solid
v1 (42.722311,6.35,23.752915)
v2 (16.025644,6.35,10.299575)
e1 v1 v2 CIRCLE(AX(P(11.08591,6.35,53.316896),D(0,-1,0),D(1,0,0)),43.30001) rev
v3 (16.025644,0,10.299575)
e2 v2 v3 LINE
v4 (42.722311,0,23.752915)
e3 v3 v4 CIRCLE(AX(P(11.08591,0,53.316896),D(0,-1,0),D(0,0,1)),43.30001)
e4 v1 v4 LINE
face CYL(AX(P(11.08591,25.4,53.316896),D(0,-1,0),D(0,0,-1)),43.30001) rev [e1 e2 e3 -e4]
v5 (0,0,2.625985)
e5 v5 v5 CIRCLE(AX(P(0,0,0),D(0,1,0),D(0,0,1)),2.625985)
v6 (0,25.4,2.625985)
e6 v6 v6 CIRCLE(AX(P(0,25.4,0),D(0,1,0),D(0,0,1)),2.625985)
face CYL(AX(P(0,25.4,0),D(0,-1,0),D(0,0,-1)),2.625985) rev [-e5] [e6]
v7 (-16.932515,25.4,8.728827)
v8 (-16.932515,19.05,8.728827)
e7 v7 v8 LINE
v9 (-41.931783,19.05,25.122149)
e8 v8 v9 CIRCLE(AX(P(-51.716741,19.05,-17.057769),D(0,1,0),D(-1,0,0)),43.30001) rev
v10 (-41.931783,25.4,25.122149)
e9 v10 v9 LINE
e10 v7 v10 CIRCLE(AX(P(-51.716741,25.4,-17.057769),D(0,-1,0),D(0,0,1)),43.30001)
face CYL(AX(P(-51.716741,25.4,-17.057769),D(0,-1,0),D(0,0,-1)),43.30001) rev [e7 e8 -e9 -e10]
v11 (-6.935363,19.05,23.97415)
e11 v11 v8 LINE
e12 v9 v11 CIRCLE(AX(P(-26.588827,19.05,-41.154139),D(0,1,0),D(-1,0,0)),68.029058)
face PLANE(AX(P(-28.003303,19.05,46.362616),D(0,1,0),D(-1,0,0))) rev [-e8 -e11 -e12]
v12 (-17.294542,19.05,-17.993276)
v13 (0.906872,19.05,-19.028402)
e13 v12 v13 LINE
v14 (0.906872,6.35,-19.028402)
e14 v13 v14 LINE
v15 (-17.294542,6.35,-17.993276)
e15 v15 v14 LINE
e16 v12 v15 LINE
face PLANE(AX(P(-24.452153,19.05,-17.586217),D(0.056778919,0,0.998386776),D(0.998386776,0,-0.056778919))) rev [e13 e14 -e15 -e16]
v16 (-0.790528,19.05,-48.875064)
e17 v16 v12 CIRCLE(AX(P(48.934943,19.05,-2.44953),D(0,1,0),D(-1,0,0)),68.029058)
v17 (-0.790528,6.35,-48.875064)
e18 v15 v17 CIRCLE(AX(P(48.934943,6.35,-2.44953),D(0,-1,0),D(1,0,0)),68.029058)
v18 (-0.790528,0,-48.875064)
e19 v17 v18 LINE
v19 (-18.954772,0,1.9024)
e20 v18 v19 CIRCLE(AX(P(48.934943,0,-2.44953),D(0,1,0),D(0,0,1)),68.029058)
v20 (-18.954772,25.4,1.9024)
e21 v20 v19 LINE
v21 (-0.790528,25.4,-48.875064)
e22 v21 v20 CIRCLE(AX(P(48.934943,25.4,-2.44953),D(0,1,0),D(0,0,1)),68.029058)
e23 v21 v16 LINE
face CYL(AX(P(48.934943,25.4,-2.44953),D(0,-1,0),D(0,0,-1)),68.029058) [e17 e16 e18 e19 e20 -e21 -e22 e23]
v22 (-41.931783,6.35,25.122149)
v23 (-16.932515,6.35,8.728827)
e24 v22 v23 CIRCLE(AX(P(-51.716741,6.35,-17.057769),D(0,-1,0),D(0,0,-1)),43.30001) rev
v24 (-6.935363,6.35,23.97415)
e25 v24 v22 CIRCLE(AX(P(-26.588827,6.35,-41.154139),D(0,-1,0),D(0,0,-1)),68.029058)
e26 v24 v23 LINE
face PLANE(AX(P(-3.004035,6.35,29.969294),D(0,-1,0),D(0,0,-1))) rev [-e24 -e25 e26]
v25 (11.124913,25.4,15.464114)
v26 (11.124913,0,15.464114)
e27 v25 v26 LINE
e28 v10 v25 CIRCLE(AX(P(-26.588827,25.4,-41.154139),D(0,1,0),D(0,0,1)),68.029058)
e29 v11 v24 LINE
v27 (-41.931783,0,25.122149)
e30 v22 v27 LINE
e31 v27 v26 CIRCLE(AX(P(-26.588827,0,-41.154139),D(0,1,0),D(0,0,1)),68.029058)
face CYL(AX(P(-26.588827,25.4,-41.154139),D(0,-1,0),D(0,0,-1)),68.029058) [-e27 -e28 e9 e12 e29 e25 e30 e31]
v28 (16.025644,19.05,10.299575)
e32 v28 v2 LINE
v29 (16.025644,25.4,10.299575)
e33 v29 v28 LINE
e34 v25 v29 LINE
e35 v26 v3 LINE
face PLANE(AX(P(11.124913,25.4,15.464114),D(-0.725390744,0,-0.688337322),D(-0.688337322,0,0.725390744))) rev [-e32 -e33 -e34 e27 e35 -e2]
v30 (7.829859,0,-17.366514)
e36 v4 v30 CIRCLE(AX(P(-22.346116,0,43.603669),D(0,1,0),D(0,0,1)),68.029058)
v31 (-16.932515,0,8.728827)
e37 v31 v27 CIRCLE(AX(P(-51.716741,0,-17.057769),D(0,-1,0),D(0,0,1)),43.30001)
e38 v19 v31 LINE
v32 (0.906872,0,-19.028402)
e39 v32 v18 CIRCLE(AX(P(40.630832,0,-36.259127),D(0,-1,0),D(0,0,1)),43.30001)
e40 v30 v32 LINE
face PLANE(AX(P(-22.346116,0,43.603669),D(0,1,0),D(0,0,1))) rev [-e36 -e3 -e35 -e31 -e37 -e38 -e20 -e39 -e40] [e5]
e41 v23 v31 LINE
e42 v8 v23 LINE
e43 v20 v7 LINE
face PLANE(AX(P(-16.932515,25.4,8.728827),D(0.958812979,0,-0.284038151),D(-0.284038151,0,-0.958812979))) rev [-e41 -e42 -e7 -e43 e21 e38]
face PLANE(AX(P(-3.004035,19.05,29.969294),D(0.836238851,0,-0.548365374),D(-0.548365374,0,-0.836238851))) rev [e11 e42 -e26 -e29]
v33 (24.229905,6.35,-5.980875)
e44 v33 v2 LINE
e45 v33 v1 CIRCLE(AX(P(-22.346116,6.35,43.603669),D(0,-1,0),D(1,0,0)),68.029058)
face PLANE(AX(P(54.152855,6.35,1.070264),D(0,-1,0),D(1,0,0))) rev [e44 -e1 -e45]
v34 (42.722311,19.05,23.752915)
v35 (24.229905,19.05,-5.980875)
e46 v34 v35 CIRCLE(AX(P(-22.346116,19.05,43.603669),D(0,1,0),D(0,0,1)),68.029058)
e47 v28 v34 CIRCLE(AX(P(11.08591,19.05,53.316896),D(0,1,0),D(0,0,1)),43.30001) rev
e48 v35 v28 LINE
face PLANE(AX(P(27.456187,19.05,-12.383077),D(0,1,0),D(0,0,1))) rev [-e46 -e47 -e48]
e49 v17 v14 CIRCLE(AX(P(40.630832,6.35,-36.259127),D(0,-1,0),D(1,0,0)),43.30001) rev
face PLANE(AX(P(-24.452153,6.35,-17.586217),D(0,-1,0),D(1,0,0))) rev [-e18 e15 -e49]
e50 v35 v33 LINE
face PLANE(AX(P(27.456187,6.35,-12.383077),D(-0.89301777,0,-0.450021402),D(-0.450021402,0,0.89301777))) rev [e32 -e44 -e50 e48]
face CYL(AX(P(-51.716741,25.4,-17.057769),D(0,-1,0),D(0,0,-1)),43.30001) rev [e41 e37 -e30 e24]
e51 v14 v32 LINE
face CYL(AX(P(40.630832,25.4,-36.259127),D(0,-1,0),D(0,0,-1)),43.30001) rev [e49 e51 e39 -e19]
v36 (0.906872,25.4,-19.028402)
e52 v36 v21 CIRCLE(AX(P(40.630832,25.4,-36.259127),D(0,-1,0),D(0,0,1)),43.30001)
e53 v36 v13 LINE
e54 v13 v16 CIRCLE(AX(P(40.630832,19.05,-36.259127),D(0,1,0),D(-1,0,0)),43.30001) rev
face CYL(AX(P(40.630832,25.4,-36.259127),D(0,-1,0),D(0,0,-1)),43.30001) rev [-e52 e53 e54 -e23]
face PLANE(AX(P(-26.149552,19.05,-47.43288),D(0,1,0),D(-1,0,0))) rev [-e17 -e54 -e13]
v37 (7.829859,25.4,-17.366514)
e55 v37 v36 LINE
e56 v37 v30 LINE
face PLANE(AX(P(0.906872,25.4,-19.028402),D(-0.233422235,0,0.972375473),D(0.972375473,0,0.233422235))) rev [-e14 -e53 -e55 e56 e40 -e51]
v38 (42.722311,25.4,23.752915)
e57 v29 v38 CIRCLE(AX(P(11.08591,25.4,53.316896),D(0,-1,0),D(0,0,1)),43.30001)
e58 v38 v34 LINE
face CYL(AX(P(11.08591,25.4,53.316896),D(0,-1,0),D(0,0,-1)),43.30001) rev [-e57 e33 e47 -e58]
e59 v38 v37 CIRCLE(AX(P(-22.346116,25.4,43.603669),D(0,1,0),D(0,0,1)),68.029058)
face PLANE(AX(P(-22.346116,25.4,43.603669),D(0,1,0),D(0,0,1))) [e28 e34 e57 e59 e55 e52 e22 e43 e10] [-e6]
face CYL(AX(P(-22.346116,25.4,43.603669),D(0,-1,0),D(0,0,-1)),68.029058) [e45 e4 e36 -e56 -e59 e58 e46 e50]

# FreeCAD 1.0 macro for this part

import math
import FreeCAD as App
import Part
import Sketcher

V = App.Vector
Q = App.Units.Quantity

doc = App.newDocument("Part")
body = doc.addObject("PartDesign::Body", "Body")

sketch1 = body.newObject("Sketcher::SketchObject", "Sketch")
sketch1.AttachmentSupport = (doc.getObject("XZ_Plane"), [""])
sketch1.MapMode = "FlatFace"
sketch1.addGeometry([
    Part.LineSegment(V(7.829859, -17.366514, 0), V(0.906872, -19.028402, 0)),
    Part.ArcOfCircle(Part.Circle(V(40.630832, -36.259127, 0), V(0, 0, 1), 43.30001), math.radians(156.550656), math.radians(196.939459)),
    Part.ArcOfCircle(Part.Circle(V(48.934943, -2.44953, 0), V(0, 0, 1), 68.029058), math.radians(176.33219), math.radians(223.03436)),
    Part.LineSegment(V(-18.954772, 1.9024, 0), V(-16.932515, 8.728827, 0)),
    Part.ArcOfCircle(Part.Circle(V(-51.716741, -17.057769, 0), V(0, 0, 1), 43.30001), math.radians(36.550656), math.radians(76.939459)),
    Part.ArcOfCircle(Part.Circle(V(-26.588827, -41.154139, 0), V(0, 0, 1), 68.029058), math.radians(56.33219), math.radians(103.03436)),
    Part.LineSegment(V(11.124913, 15.464114, 0), V(16.025644, 10.299575, 0)),
    Part.ArcOfCircle(Part.Circle(V(11.08591, 53.316896, 0), V(0, 0, 1), 43.30001), math.radians(-83.449344), math.radians(-43.060541)),
    Part.ArcOfCircle(Part.Circle(V(-22.346116, 43.603669, 0), V(0, 0, 1), 68.029058), math.radians(-63.66781), math.radians(-16.96564)),
], False)
sketch1.addConstraint([
    Sketcher.Constraint("Coincident", 0, 2, 1, 1),
    Sketcher.Constraint("Coincident", 1, 2, 2, 2),
    Sketcher.Constraint("Coincident", 2, 1, 3, 1),
    Sketcher.Constraint("Coincident", 3, 2, 4, 1),
    Sketcher.Constraint("Coincident", 4, 2, 5, 2),
    Sketcher.Constraint("Coincident", 5, 1, 6, 1),
    Sketcher.Constraint("Coincident", 6, 2, 7, 1),
    Sketcher.Constraint("Coincident", 7, 2, 8, 2),
    Sketcher.Constraint("Coincident", 8, 1, 0, 1),
    Sketcher.Constraint("Equal", 1, 4),
    Sketcher.Constraint("Equal", 2, 5),
    Sketcher.Constraint("Equal", 4, 7),
    Sketcher.Constraint("Equal", 5, 8),
    Sketcher.Constraint("Equal", 0, 3),
    Sketcher.Constraint("Equal", 3, 6),
    Sketcher.Constraint("Radius", 1, 43.30001),
    Sketcher.Constraint("Radius", 2, 68.029058),
    Sketcher.Constraint("DistanceY", -1, 1, 2, 1, 1.9024),
    Sketcher.Constraint("DistanceY", 2, 3, 8, 3, 46.053199),
    Sketcher.Constraint("DistanceX", 5, 3, 0, 2, 27.495699),
    Sketcher.Constraint("DistanceX", 5, 3, 1, 2, 25.798299),
    Sketcher.Constraint("DistanceX", 8, 3, 3, 2, 5.413601),
    Sketcher.Constraint("DistanceX", 6, 2, 2, 3, 32.909299),
    Sketcher.Constraint("DistanceX", 5, 1, 7, 2, 31.597399),
    Sketcher.Constraint("DistanceY", 5, 1, 7, 2, 8.288801),
    Sketcher.Constraint("DistanceX", 7, 3, 7, 2, 31.636402),
    Sketcher.Constraint("DistanceX", -1, 1, 1, 3, 40.630832),
    Sketcher.Constraint("DistanceY", 2, 3, -1, 1, 2.44953),
    Sketcher.Constraint("DistanceX", 4, 3, -1, 1, 51.716741),
    Sketcher.Constraint("DistanceY", 4, 3, -1, 1, 17.057769),
    Sketcher.Constraint("DistanceY", 5, 3, -1, 1, 41.154139),
    Sketcher.Constraint("DistanceX", -1, 1, 7, 3, 11.08591),
    Sketcher.Constraint("DistanceX", -1, 1, 0, 2, 0.906872),
])
pad1 = body.newObject("PartDesign::Pad", "Pad")
pad1.Profile = sketch1
pad1.Length = Q("1 in")
pad1.Reversed = True

sketch2 = body.newObject("Sketcher::SketchObject", "Sketch001")
sketch2.Placement = App.Placement(V(1.982617, 0, -0.112753), App.Rotation(V(-0.056778919, 0, -0.998386776), V(0, 1, 0), V(0.998386776, 0, -0.056778919), "ZXY"))
sketch2.addGeometry([
    Part.LineSegment(V(18.946214, 19.05, 0), V(18.946214, 6.35, 0)),
    Part.LineSegment(V(18.946214, 6.35, 0), V(48.841103, 6.35, 0)),
    Part.LineSegment(V(48.841103, 6.35, 0), V(48.841103, 19.05, 0)),
    Part.LineSegment(V(48.841103, 19.05, 0), V(18.946214, 19.05, 0)),
], False)
sketch2.addConstraint([
    Sketcher.Constraint("Coincident", 0, 2, 1, 1),
    Sketcher.Constraint("Coincident", 1, 2, 2, 1),
    Sketcher.Constraint("Coincident", 2, 2, 3, 1),
    Sketcher.Constraint("Coincident", 3, 2, 0, 1),
    Sketcher.Constraint("Vertical", 0),
    Sketcher.Constraint("Horizontal", 1),
    Sketcher.Constraint("Vertical", 2),
    Sketcher.Constraint("Horizontal", 3),
    Sketcher.Constraint("DistanceY", 0, 2, 0, 1, Q("0.5 in")),
    Sketcher.Constraint("DistanceY", -1, 1, 0, 2, Q("0.25 in")),
    Sketcher.Constraint("DistanceX", 1, 1, 1, 2, 29.89489),
    Sketcher.Constraint("DistanceX", -1, 1, 0, 2, 18.946214),
])
pocket1 = body.newObject("PartDesign::Pocket", "Pocket")
pocket1.Profile = sketch2
pocket1.Length = Q("1 in")

sketch3 = body.newObject("Sketcher::SketchObject", "Sketch002")
sketch3.Placement = App.Placement(V(-0.893662, 0, 1.773373), App.Rotation(V(0.89301777, 0, 0.450021402), V(0, 1, 0), V(-0.450021402, 0, 0.89301777), "ZXY"))
sketch3.addGeometry([
    Part.LineSegment(V(18.946214, 19.05, 0), V(18.946214, 6.35, 0)),
    Part.LineSegment(V(18.946214, 6.35, 0), V(48.841103, 6.35, 0)),
    Part.LineSegment(V(48.841103, 6.35, 0), V(48.841103, 19.05, 0)),
    Part.LineSegment(V(48.841103, 19.05, 0), V(18.946214, 19.05, 0)),
], False)
sketch3.addConstraint([
    Sketcher.Constraint("Coincident", 0, 2, 1, 1),
    Sketcher.Constraint("Coincident", 1, 2, 2, 1),
    Sketcher.Constraint("Coincident", 2, 2, 3, 1),
    Sketcher.Constraint("Coincident", 3, 2, 0, 1),
    Sketcher.Constraint("Vertical", 0),
    Sketcher.Constraint("Horizontal", 1),
    Sketcher.Constraint("Vertical", 2),
    Sketcher.Constraint("Horizontal", 3),
    Sketcher.Constraint("DistanceY", 0, 2, 0, 1, Q("0.5 in")),
    Sketcher.Constraint("DistanceY", -1, 1, 0, 2, Q("0.25 in")),
    Sketcher.Constraint("DistanceX", 1, 1, 1, 2, 29.89489),
    Sketcher.Constraint("DistanceX", -1, 1, 0, 2, 18.946214),
])
pocket2 = body.newObject("PartDesign::Pocket", "Pocket001")
pocket2.Profile = sketch3
pocket2.Length = Q("1 in")

sketch4 = body.newObject("Sketcher::SketchObject", "Sketch003")
sketch4.Placement = App.Placement(V(-1.088955, 0, -1.66062), App.Rotation(V(-0.836238851, 0, 0.548365374), V(0, 0.999999999, 0), V(-0.548365374, 0, -0.836238851), "ZXY"))
sketch4.addGeometry([
    Part.LineSegment(V(18.946214, 19.05, 0), V(18.946214, 6.35, 0)),
    Part.LineSegment(V(18.946214, 6.35, 0), V(48.841103, 6.35, 0)),
    Part.LineSegment(V(48.841103, 6.35, 0), V(48.841103, 19.05, 0)),
    Part.LineSegment(V(48.841103, 19.05, 0), V(18.946214, 19.05, 0)),
], False)
sketch4.addConstraint([
    Sketcher.Constraint("Coincident", 0, 2, 1, 1),
    Sketcher.Constraint("Coincident", 1, 2, 2, 1),
    Sketcher.Constraint("Coincident", 2, 2, 3, 1),
    Sketcher.Constraint("Coincident", 3, 2, 0, 1),
    Sketcher.Constraint("Vertical", 0),
    Sketcher.Constraint("Horizontal", 1),
    Sketcher.Constraint("Vertical", 2),
    Sketcher.Constraint("Horizontal", 3),
    Sketcher.Constraint("DistanceY", 0, 2, 0, 1, Q("0.5 in")),
    Sketcher.Constraint("DistanceY", -1, 1, 0, 2, Q("0.25 in")),
    Sketcher.Constraint("DistanceX", 1, 1, 1, 2, 29.89489),
    Sketcher.Constraint("DistanceX", -1, 1, 0, 2, 18.946214),
])
pocket3 = body.newObject("PartDesign::Pocket", "Pocket002")
pocket3.Profile = sketch4
pocket3.Length = Q("1 in")

sketch5 = body.newObject("Sketcher::SketchObject", "Sketch004")
sketch5.AttachmentSupport = (doc.getObject("XZ_Plane"), [""])
sketch5.MapMode = "FlatFace"
sketch5.addGeometry(Part.Circle(V(0, 0, 0), V(0, 0, 1), 2.625985), False)
sketch5.addConstraint([
    Sketcher.Constraint("Coincident", 0, 3, -1, 1),
    Sketcher.Constraint("Diameter", 0, 5.251969),
])
pocket4 = body.newObject("PartDesign::Pocket", "Pocket003")
pocket4.Profile = sketch5
pocket4.Length = Q("1 in")

doc.recompute()
